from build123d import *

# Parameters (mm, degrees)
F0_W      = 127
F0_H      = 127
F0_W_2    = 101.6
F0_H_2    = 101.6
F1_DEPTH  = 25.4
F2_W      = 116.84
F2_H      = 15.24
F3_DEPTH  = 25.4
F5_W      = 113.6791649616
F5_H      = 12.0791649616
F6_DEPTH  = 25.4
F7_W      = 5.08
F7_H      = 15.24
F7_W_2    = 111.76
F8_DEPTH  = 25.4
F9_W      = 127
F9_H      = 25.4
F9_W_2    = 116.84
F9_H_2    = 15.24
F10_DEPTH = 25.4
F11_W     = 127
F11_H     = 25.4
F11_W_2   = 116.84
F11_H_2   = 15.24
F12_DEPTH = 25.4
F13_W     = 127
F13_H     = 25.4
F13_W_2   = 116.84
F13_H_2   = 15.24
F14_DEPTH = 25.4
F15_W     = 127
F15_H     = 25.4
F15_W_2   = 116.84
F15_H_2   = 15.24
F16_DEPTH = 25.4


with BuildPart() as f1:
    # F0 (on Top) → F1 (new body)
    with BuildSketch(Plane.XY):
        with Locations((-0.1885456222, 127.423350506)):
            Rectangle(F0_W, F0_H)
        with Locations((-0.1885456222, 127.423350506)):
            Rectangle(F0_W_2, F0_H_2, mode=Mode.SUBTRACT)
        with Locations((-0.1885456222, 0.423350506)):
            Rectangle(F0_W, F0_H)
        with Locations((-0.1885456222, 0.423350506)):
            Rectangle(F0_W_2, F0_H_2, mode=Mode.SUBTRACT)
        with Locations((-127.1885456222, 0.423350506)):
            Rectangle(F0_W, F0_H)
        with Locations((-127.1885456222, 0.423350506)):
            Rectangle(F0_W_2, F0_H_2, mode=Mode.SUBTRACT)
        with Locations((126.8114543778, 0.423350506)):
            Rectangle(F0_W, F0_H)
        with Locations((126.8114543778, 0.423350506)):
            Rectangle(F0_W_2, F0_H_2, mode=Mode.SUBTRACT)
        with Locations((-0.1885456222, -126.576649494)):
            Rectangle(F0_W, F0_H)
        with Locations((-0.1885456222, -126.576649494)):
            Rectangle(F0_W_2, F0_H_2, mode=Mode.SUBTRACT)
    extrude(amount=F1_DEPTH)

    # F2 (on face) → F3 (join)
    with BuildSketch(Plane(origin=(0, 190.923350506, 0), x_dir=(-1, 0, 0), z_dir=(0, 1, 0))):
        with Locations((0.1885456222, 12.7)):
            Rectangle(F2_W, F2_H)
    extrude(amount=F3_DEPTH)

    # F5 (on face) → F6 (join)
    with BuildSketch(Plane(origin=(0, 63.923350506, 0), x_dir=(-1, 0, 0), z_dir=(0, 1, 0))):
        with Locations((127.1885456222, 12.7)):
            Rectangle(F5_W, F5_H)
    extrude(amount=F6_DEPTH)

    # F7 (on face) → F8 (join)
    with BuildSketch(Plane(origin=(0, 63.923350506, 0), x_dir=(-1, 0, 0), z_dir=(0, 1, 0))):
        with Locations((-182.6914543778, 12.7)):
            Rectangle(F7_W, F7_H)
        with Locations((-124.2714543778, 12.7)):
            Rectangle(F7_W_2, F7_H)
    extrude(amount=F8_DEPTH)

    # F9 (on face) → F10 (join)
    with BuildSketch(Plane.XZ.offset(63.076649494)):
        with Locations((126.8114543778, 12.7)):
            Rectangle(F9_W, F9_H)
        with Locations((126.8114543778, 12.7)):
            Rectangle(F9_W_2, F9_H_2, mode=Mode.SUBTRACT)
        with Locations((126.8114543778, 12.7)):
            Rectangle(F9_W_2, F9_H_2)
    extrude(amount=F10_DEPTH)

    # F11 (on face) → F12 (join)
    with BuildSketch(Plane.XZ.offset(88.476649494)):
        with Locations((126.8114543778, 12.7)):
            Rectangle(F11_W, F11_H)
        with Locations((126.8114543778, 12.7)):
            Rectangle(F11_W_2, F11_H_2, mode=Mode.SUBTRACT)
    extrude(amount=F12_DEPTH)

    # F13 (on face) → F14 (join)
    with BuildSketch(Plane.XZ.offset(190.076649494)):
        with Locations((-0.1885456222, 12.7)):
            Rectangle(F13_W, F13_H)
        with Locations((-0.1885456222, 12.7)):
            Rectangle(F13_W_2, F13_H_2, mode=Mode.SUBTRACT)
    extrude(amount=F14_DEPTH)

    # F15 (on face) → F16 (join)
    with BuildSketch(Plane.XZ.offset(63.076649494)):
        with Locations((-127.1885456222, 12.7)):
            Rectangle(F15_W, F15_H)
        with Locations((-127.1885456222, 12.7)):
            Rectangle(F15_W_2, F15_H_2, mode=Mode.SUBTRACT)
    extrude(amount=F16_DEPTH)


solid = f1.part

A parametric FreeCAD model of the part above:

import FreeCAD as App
import Part
import Sketcher

V = App.Vector
Q = App.Units.Quantity

doc = App.newDocument("Part")
params = doc.addObject("Spreadsheet::Sheet", "Params")
for row, (alias, value) in enumerate([
    ("sketch1_width", "5 in"),
    ("sketch1_width2", "4 in"),
    ("pad1_length", "1 in"),
    ("sketch2_width", "4.6 in"),
    ("sketch2_height", "0.6 in"),
    ("pad2_length", "1 in"),
    ("pad3_length", "1 in"),
    ("sketch4_width", "4.6 in"),
    ("sketch4_height", "0.6 in"),
    ("pad4_length", "1 in"),
    ("sketch5_width", "5 in"),
    ("sketch5_height", "1 in"),
    ("pad5_length", "1 in"),
    ("sketch6_width", "5 in"),
    ("sketch6_height", "1 in"),
    ("sketch6_width2", "4.6 in"),
    ("sketch6_height2", "0.6 in"),
    ("pad6_length", "1 in"),
    ("sketch7_width", "5 in"),
    ("sketch7_height", "1 in"),
    ("sketch7_width2", "4.6 in"),
    ("sketch7_height2", "0.6 in"),
    ("pad7_length", "1 in"),
    ("sketch8_width", "5 in"),
    ("sketch8_height", "1 in"),
    ("sketch8_width2", "4.6 in"),
    ("sketch8_height2", "0.6 in"),
    ("pad8_length", "1 in"),
], start=1):
    params.set(f"A{row}", alias)
    params.set(f"B{row}", "=" + value)
    params.setAlias(f"B{row}", alias)

body = doc.addObject("PartDesign::Body", "Body")

# Sketch on XY plane
sketch1 = doc.addObject("Sketcher::SketchObject", "Sketch")
body.addObject(sketch1)
sketch1.AttachmentSupport = (doc.XY_Plane, [""])
sketch1.MapMode = "FlatFace"
sketch1.addGeometry([
    Part.LineSegment(V(-63.688546, 190.923351, 0), V(-63.688546, 63.923351, 0)),  # 0
    Part.LineSegment(V(-63.688546, 63.923351, 0), V(-190.688546, 63.923351, 0)),  # 1
    Part.LineSegment(V(-190.688546, 63.923351, 0), V(-190.688546, -63.076649, 0)),  # 2
    Part.LineSegment(V(-190.688546, -63.076649, 0), V(-63.688546, -63.076649, 0)),  # 3
    Part.LineSegment(V(-63.688546, -63.076649, 0), V(-63.688546, -190.076649, 0)),  # 4
    Part.LineSegment(V(-63.688546, -190.076649, 0), V(63.311454, -190.076649, 0)),  # 5
    Part.LineSegment(V(63.311454, -190.076649, 0), V(63.311454, -63.076649, 0)),  # 6
    Part.LineSegment(V(63.311454, -63.076649, 0), V(190.311454, -63.076649, 0)),  # 7
    Part.LineSegment(V(190.311454, -63.076649, 0), V(190.311454, 63.923351, 0)),  # 8
    Part.LineSegment(V(190.311454, 63.923351, 0), V(63.311454, 63.923351, 0)),  # 9
    Part.LineSegment(V(63.311454, 63.923351, 0), V(63.311454, 190.923351, 0)),  # 10
    Part.LineSegment(V(63.311454, 190.923351, 0), V(-63.688546, 190.923351, 0)),  # 11
    Part.LineSegment(V(50.611454, -177.376649, 0), V(-50.988546, -177.376649, 0)),  # 12
    Part.LineSegment(V(-50.988546, -177.376649, 0), V(-50.988546, -75.776649, 0)),  # 13
    Part.LineSegment(V(-50.988546, -75.776649, 0), V(50.611454, -75.776649, 0)),  # 14
    Part.LineSegment(V(50.611454, -75.776649, 0), V(50.611454, -177.376649, 0)),  # 15
    Part.LineSegment(V(-76.388546, -50.376649, 0), V(-177.988546, -50.376649, 0)),  # 16
    Part.LineSegment(V(-177.988546, -50.376649, 0), V(-177.988546, 51.223351, 0)),  # 17
    Part.LineSegment(V(-177.988546, 51.223351, 0), V(-76.388546, 51.223351, 0)),  # 18
    Part.LineSegment(V(-76.388546, 51.223351, 0), V(-76.388546, -50.376649, 0)),  # 19
    Part.LineSegment(V(50.611454, -50.376649, 0), V(-50.988546, -50.376649, 0)),  # 20
    Part.LineSegment(V(-50.988546, -50.376649, 0), V(-50.988546, 51.223351, 0)),  # 21
    Part.LineSegment(V(-50.988546, 51.223351, 0), V(50.611454, 51.223351, 0)),  # 22
    Part.LineSegment(V(50.611454, 51.223351, 0), V(50.611454, -50.376649, 0)),  # 23
    Part.LineSegment(V(177.611454, -50.376649, 0), V(76.011454, -50.376649, 0)),  # 24
    Part.LineSegment(V(76.011454, -50.376649, 0), V(76.011454, 51.223351, 0)),  # 25
    Part.LineSegment(V(76.011454, 51.223351, 0), V(177.611454, 51.223351, 0)),  # 26
    Part.LineSegment(V(177.611454, 51.223351, 0), V(177.611454, -50.376649, 0)),  # 27
    Part.LineSegment(V(50.611454, 76.623351, 0), V(-50.988546, 76.623351, 0)),  # 28
    Part.LineSegment(V(-50.988546, 76.623351, 0), V(-50.988546, 178.223351, 0)),  # 29
    Part.LineSegment(V(-50.988546, 178.223351, 0), V(50.611454, 178.223351, 0)),  # 30
    Part.LineSegment(V(50.611454, 178.223351, 0), V(50.611454, 76.623351, 0)),  # 31
], False)
sketch1.addConstraint([
    Sketcher.Constraint("Coincident", 0, 2, 1, 1),
    Sketcher.Constraint("Coincident", 1, 2, 2, 1),
    Sketcher.Constraint("Coincident", 2, 2, 3, 1),
    Sketcher.Constraint("Coincident", 3, 2, 4, 1),
    Sketcher.Constraint("Coincident", 4, 2, 5, 1),
    Sketcher.Constraint("Coincident", 5, 2, 6, 1),
    Sketcher.Constraint("Coincident", 6, 2, 7, 1),
    Sketcher.Constraint("Coincident", 7, 2, 8, 1),
    Sketcher.Constraint("Coincident", 8, 2, 9, 1),
    Sketcher.Constraint("Coincident", 9, 2, 10, 1),
    Sketcher.Constraint("Coincident", 10, 2, 11, 1),
    Sketcher.Constraint("Coincident", 11, 2, 0, 1),
    Sketcher.Constraint("Coincident", 12, 2, 13, 1),
    Sketcher.Constraint("Coincident", 13, 2, 14, 1),
    Sketcher.Constraint("Coincident", 14, 2, 15, 1),
    Sketcher.Constraint("Coincident", 15, 2, 12, 1),
    Sketcher.Constraint("Coincident", 16, 2, 17, 1),
    Sketcher.Constraint("Coincident", 17, 2, 18, 1),
    Sketcher.Constraint("Coincident", 18, 2, 19, 1),
    Sketcher.Constraint("Coincident", 19, 2, 16, 1),
    Sketcher.Constraint("Coincident", 20, 2, 21, 1),
    Sketcher.Constraint("Coincident", 21, 2, 22, 1),
    Sketcher.Constraint("Coincident", 22, 2, 23, 1),
    Sketcher.Constraint("Coincident", 23, 2, 20, 1),
    Sketcher.Constraint("Coincident", 24, 2, 25, 1),
    Sketcher.Constraint("Coincident", 25, 2, 26, 1),
    Sketcher.Constraint("Coincident", 26, 2, 27, 1),
    Sketcher.Constraint("Coincident", 27, 2, 24, 1),
    Sketcher.Constraint("Coincident", 28, 2, 29, 1),
    Sketcher.Constraint("Coincident", 29, 2, 30, 1),
    Sketcher.Constraint("Coincident", 30, 2, 31, 1),
    Sketcher.Constraint("Coincident", 31, 2, 28, 1),
    Sketcher.Constraint("Vertical", 0),
    Sketcher.Constraint("Horizontal", 1),
    Sketcher.Constraint("Vertical", 2),
    Sketcher.Constraint("Horizontal", 3),
    Sketcher.Constraint("Vertical", 4),
    Sketcher.Constraint("Horizontal", 5),
    Sketcher.Constraint("Vertical", 6),
    Sketcher.Constraint("Horizontal", 7),
    Sketcher.Constraint("Vertical", 8),
    Sketcher.Constraint("Horizontal", 9),
    Sketcher.Constraint("Vertical", 10),
    Sketcher.Constraint("Horizontal", 11),
    Sketcher.Constraint("Horizontal", 12),
    Sketcher.Constraint("Vertical", 13),
    Sketcher.Constraint("Horizontal", 14),
    Sketcher.Constraint("Vertical", 15),
    Sketcher.Constraint("Horizontal", 16),
    Sketcher.Constraint("Vertical", 17),
    Sketcher.Constraint("Horizontal", 18),
    Sketcher.Constraint("Vertical", 19),
    Sketcher.Constraint("Horizontal", 20),
    Sketcher.Constraint("Vertical", 21),
    Sketcher.Constraint("Horizontal", 22),
    Sketcher.Constraint("Vertical", 23),
    Sketcher.Constraint("Horizontal", 24),
    Sketcher.Constraint("Vertical", 25),
    Sketcher.Constraint("Horizontal", 26),
    Sketcher.Constraint("Vertical", 27),
    Sketcher.Constraint("Horizontal", 28),
    Sketcher.Constraint("Vertical", 29),
    Sketcher.Constraint("Horizontal", 30),
    Sketcher.Constraint("Vertical", 31),
    Sketcher.Constraint("Horizontal", 3, 2, 6, 2),
    Sketcher.Constraint("Horizontal", 1, 2, 8, 2),
    Sketcher.Constraint("Horizontal", 19, 2, 20, 2),
    Sketcher.Constraint("Horizontal", 18, 2, 21, 2),
    Sketcher.Constraint("Horizontal", 23, 2, 24, 2),
    Sketcher.Constraint("Horizontal", 22, 2, 25, 2),
    Sketcher.Constraint("Vertical", 0, 2, 3, 2),
    Sketcher.Constraint("Vertical", 6, 2, 9, 2),
    Sketcher.Constraint("Vertical", 13, 2, 20, 2),
    Sketcher.Constraint("Vertical", 15, 2, 22, 2),
    Sketcher.Constraint("Vertical", 21, 2, 28, 2),
    Sketcher.Constraint("Vertical", 23, 2, 30, 2),
    Sketcher.Constraint("Equal", 3, 5),
    Sketcher.Constraint("Equal", 5, 7),
    Sketcher.Constraint("Equal", 14, 16),
    Sketcher.Constraint("Equal", 22, 24),
    Sketcher.Constraint("Equal", 11, 0),
    Sketcher.Constraint("Equal", 0, 2),
    Sketcher.Constraint("Equal", 2, 4),
    Sketcher.Constraint("Equal", 30, 13),
    Sketcher.Constraint("Equal", 15, 17),
    Sketcher.Constraint("Equal", 27, 29),
    Sketcher.Constraint("DistanceX", 1, 2, 1, 1, Q("5 in")),
    Sketcher.Constraint("DistanceX", 12, 2, 12, 1, Q("4 in")),
    Sketcher.Constraint("DistanceX", 16, 2, 13, 2, Q("5 in")),
    Sketcher.Constraint("DistanceY", 13, 2, 16, 2, Q("1 in")),
    Sketcher.Constraint("DistanceX", 23, 2, 24, 2, Q("1 in")),
    Sketcher.Constraint("DistanceY", 21, 2, 28, 2, Q("1 in")),
    Sketcher.Constraint("DistanceX", 4, 2, 12, 2, Q("0.5 in")),
    Sketcher.Constraint("DistanceY", 4, 2, 12, 2, Q("0.5 in")),
    Sketcher.Constraint("DistanceY", -1, 1, 0, 2, Q("63.923351 mm")),
    Sketcher.Constraint("DistanceX", 0, 2, -1, 1, Q("63.688546 mm")),
])
sketch1.setExpression("Constraints[86]", "Params.sketch1_width")
sketch1.setExpression("Constraints[87]", "Params.sketch1_width2")
pad1 = doc.addObject("PartDesign::Pad", "Pad")
body.addObject(pad1)
pad1.Profile = sketch1
pad1.setExpression("Length", "Params.pad1_length")

# Sketch on XZ plane
sketch2 = doc.addObject("Sketcher::SketchObject", "Sketch001")
body.addObject(sketch2)
sketch2.AttachmentSupport = (doc.XZ_Plane, [""])
sketch2.MapMode = "FlatFace"
sketch2.AttachmentOffset = App.Placement(V(0, 0, -190.923351), App.Rotation())
sketch2.addGeometry([
    Part.LineSegment(V(58.231454, 20.32, 0), V(58.231454, 5.08, 0)),
    Part.LineSegment(V(58.231454, 5.08, 0), V(-58.608546, 5.08, 0)),
    Part.LineSegment(V(-58.608546, 5.08, 0), V(-58.608546, 20.32, 0)),
    Part.LineSegment(V(-58.608546, 20.32, 0), V(58.231454, 20.32, 0)),
], False)
sketch2.addConstraint([
    Sketcher.Constraint("Coincident", 0, 2, 1, 1),
    Sketcher.Constraint("Coincident", 1, 2, 2, 1),
    Sketcher.Constraint("Coincident", 2, 2, 3, 1),
    Sketcher.Constraint("Coincident", 3, 2, 0, 1),
    Sketcher.Constraint("Vertical", 0),
    Sketcher.Constraint("Horizontal", 1),
    Sketcher.Constraint("Vertical", 2),
    Sketcher.Constraint("Horizontal", 3),
    Sketcher.Constraint("DistanceX", 1, 2, 1, 1, Q("4.6 in")),
    Sketcher.Constraint("DistanceY", 0, 2, 0, 1, Q("0.6 in")),
    Sketcher.Constraint("DistanceY", -1, 1, 0, 2, Q("0.2 in")),
    Sketcher.Constraint("DistanceX", -1, 1, 0, 2, Q("58.231454 mm")),
])
sketch2.setExpression("Constraints[8]", "Params.sketch2_width")
sketch2.setExpression("Constraints[9]", "Params.sketch2_height")
pad2 = doc.addObject("PartDesign::Pad", "Pad001")
body.addObject(pad2)
pad2.Profile = sketch2
pad2.setExpression("Length", "Params.pad2_length")
pad2.Reversed = True

# Sketch on XZ plane
sketch3 = doc.addObject("Sketcher::SketchObject", "Sketch002")
body.addObject(sketch3)
sketch3.AttachmentSupport = (doc.XZ_Plane, [""])
sketch3.MapMode = "FlatFace"
sketch3.AttachmentOffset = App.Placement(V(0, 0, -63.923351), App.Rotation())
sketch3.addGeometry([
    Part.LineSegment(V(-70.348963, 18.739582, 0), V(-70.348963, 6.660418, 0)),
    Part.LineSegment(V(-70.348963, 6.660418, 0), V(-184.028128, 6.660418, 0)),
    Part.LineSegment(V(-184.028128, 6.660418, 0), V(-184.028128, 18.739582, 0)),
    Part.LineSegment(V(-184.028128, 18.739582, 0), V(-70.348963, 18.739582, 0)),
], False)
sketch3.addConstraint([
    Sketcher.Constraint("Coincident", 0, 2, 1, 1),
    Sketcher.Constraint("Coincident", 1, 2, 2, 1),
    Sketcher.Constraint("Coincident", 2, 2, 3, 1),
    Sketcher.Constraint("Coincident", 3, 2, 0, 1),
    Sketcher.Constraint("Vertical", 0),
    Sketcher.Constraint("Horizontal", 1),
    Sketcher.Constraint("Vertical", 2),
    Sketcher.Constraint("Horizontal", 3),
    Sketcher.Constraint("DistanceX", 1, 2, 1, 1, Q("113.679165 mm")),
    Sketcher.Constraint("DistanceY", 0, 2, 0, 1, Q("12.079165 mm")),
    Sketcher.Constraint("DistanceX", 1, 2, -1, 1, Q("184.028128 mm")),
    Sketcher.Constraint("DistanceY", -1, 1, 0, 2, Q("6.660418 mm")),
])
pad3 = doc.addObject("PartDesign::Pad", "Pad002")
body.addObject(pad3)
pad3.Profile = sketch3
pad3.setExpression("Length", "Params.pad3_length")
pad3.Reversed = True

# Sketch on XZ plane
sketch4 = doc.addObject("Sketcher::SketchObject", "Sketch003")
body.addObject(sketch4)
sketch4.AttachmentSupport = (doc.XZ_Plane, [""])
sketch4.MapMode = "FlatFace"
sketch4.AttachmentOffset = App.Placement(V(0, 0, -63.923351), App.Rotation())
sketch4.addGeometry([
    Part.LineSegment(V(185.231454, 20.32, 0), V(185.231454, 5.08, 0)),
    Part.LineSegment(V(185.231454, 5.08, 0), V(68.391454, 5.08, 0)),
    Part.LineSegment(V(68.391454, 5.08, 0), V(68.391454, 20.32, 0)),
    Part.LineSegment(V(68.391454, 20.32, 0), V(185.231454, 20.32, 0)),
], False)
sketch4.addConstraint([
    Sketcher.Constraint("Coincident", 0, 2, 1, 1),
    Sketcher.Constraint("Coincident", 1, 2, 2, 1),
    Sketcher.Constraint("Coincident", 2, 2, 3, 1),
    Sketcher.Constraint("Coincident", 3, 2, 0, 1),
    Sketcher.Constraint("Vertical", 0),
    Sketcher.Constraint("Horizontal", 1),
    Sketcher.Constraint("Vertical", 2),
    Sketcher.Constraint("Horizontal", 3),
    Sketcher.Constraint("DistanceX", 1, 2, 1, 1, Q("4.6 in")),
    Sketcher.Constraint("DistanceY", 0, 2, 0, 1, Q("0.6 in")),
    Sketcher.Constraint("DistanceY", -1, 1, 0, 2, Q("0.2 in")),
    Sketcher.Constraint("DistanceX", -1, 1, 0, 2, Q("185.231454 mm")),
])
sketch4.setExpression("Constraints[8]", "Params.sketch4_width")
sketch4.setExpression("Constraints[9]", "Params.sketch4_height")
pad4 = doc.addObject("PartDesign::Pad", "Pad003")
body.addObject(pad4)
pad4.Profile = sketch4
pad4.setExpression("Length", "Params.pad4_length")
pad4.Reversed = True

# Sketch on XZ plane
sketch5 = doc.addObject("Sketcher::SketchObject", "Sketch004")
body.addObject(sketch5)
sketch5.AttachmentSupport = (doc.XZ_Plane, [""])
sketch5.MapMode = "FlatFace"
sketch5.AttachmentOffset = App.Placement(V(0, 0, 63.076649), App.Rotation())
sketch5.addGeometry([
    Part.LineSegment(V(63.311454, 25.4, 0), V(63.311454, 0, 0)),
    Part.LineSegment(V(63.311454, 0, 0), V(190.311454, 0, 0)),
    Part.LineSegment(V(190.311454, 0, 0), V(190.311454, 25.4, 0)),
    Part.LineSegment(V(190.311454, 25.4, 0), V(63.311454, 25.4, 0)),
], False)
sketch5.addConstraint([
    Sketcher.Constraint("Coincident", 0, 2, 1, 1),
    Sketcher.Constraint("Coincident", 1, 2, 2, 1),
    Sketcher.Constraint("Coincident", 2, 2, 3, 1),
    Sketcher.Constraint("Coincident", 3, 2, 0, 1),
    Sketcher.Constraint("Vertical", 0),
    Sketcher.Constraint("Horizontal", 1),
    Sketcher.Constraint("Vertical", 2),
    Sketcher.Constraint("Horizontal", 3),
    Sketcher.Constraint("PointOnObject", 0, 2, -1),
    Sketcher.Constraint("DistanceX", 1, 1, 1, 2, Q("5 in")),
    Sketcher.Constraint("DistanceY", 0, 2, 0, 1, Q("1 in")),
    Sketcher.Constraint("DistanceX", -1, 1, 0, 2, Q("63.311454 mm")),
])
sketch5.setExpression("Constraints[9]", "Params.sketch5_width")
sketch5.setExpression("Constraints[10]", "Params.sketch5_height")
pad5 = doc.addObject("PartDesign::Pad", "Pad004")
body.addObject(pad5)
pad5.Profile = sketch5
pad5.setExpression("Length", "Params.pad5_length")

# Sketch on XZ plane
sketch6 = doc.addObject("Sketcher::SketchObject", "Sketch005")
body.addObject(sketch6)
sketch6.AttachmentSupport = (doc.XZ_Plane, [""])
sketch6.MapMode = "FlatFace"
sketch6.AttachmentOffset = App.Placement(V(0, 0, 88.476649), App.Rotation())
sketch6.addGeometry([
    Part.LineSegment(V(63.311454, 25.4, 0), V(63.311454, 0, 0)),  # 0
    Part.LineSegment(V(63.311454, 0, 0), V(190.311454, 0, 0)),  # 1
    Part.LineSegment(V(190.311454, 0, 0), V(190.311454, 25.4, 0)),  # 2
    Part.LineSegment(V(190.311454, 25.4, 0), V(63.311454, 25.4, 0)),  # 3
    Part.LineSegment(V(185.231454, 5.08, 0), V(68.391454, 5.08, 0)),  # 4
    Part.LineSegment(V(68.391454, 5.08, 0), V(68.391454, 20.32, 0)),  # 5
    Part.LineSegment(V(68.391454, 20.32, 0), V(185.231454, 20.32, 0)),  # 6
    Part.LineSegment(V(185.231454, 20.32, 0), V(185.231454, 5.08, 0)),  # 7
], False)
sketch6.addConstraint([
    Sketcher.Constraint("Coincident", 0, 2, 1, 1),
    Sketcher.Constraint("Coincident", 1, 2, 2, 1),
    Sketcher.Constraint("Coincident", 2, 2, 3, 1),
    Sketcher.Constraint("Coincident", 3, 2, 0, 1),
    Sketcher.Constraint("Coincident", 4, 2, 5, 1),
    Sketcher.Constraint("Coincident", 5, 2, 6, 1),
    Sketcher.Constraint("Coincident", 6, 2, 7, 1),
    Sketcher.Constraint("Coincident", 7, 2, 4, 1),
    Sketcher.Constraint("Vertical", 0),
    Sketcher.Constraint("Horizontal", 1),
    Sketcher.Constraint("Vertical", 2),
    Sketcher.Constraint("Horizontal", 3),
    Sketcher.Constraint("Horizontal", 4),
    Sketcher.Constraint("Vertical", 5),
    Sketcher.Constraint("Horizontal", 6),
    Sketcher.Constraint("Vertical", 7),
    Sketcher.Constraint("PointOnObject", 0, 2, -1),
    Sketcher.Constraint("DistanceX", 1, 1, 1, 2, Q("5 in")),
    Sketcher.Constraint("DistanceY", 0, 2, 0, 1, Q("1 in")),
    Sketcher.Constraint("DistanceX", 4, 2, 4, 1, Q("4.6 in")),
    Sketcher.Constraint("DistanceY", 5, 1, 5, 2, Q("0.6 in")),
    Sketcher.Constraint("DistanceY", -1, 1, 4, 2, Q("0.2 in")),
    Sketcher.Constraint("DistanceX", 0, 2, 4, 2, Q("0.2 in")),
    Sketcher.Constraint("DistanceX", -1, 1, 0, 2, Q("63.311454 mm")),
])
sketch6.setExpression("Constraints[17]", "Params.sketch6_width")
sketch6.setExpression("Constraints[18]", "Params.sketch6_height")
sketch6.setExpression("Constraints[19]", "Params.sketch6_width2")
sketch6.setExpression("Constraints[20]", "Params.sketch6_height2")
pad6 = doc.addObject("PartDesign::Pad", "Pad005")
body.addObject(pad6)
pad6.Profile = sketch6
pad6.setExpression("Length", "Params.pad6_length")

# Sketch on XZ plane
sketch7 = doc.addObject("Sketcher::SketchObject", "Sketch006")
body.addObject(sketch7)
sketch7.AttachmentSupport = (doc.XZ_Plane, [""])
sketch7.MapMode = "FlatFace"
sketch7.AttachmentOffset = App.Placement(V(0, 0, 190.076649), App.Rotation())
sketch7.addGeometry([
    Part.LineSegment(V(-63.688546, 25.4, 0), V(-63.688546, 0, 0)),  # 0
    Part.LineSegment(V(-63.688546, 0, 0), V(63.311454, 0, 0)),  # 1
    Part.LineSegment(V(63.311454, 0, 0), V(63.311454, 25.4, 0)),  # 2
    Part.LineSegment(V(63.311454, 25.4, 0), V(-63.688546, 25.4, 0)),  # 3
    Part.LineSegment(V(58.231454, 5.08, 0), V(-58.608546, 5.08, 0)),  # 4
    Part.LineSegment(V(-58.608546, 5.08, 0), V(-58.608546, 20.32, 0)),  # 5
    Part.LineSegment(V(-58.608546, 20.32, 0), V(58.231454, 20.32, 0)),  # 6
    Part.LineSegment(V(58.231454, 20.32, 0), V(58.231454, 5.08, 0)),  # 7
], False)
sketch7.addConstraint([
    Sketcher.Constraint("Coincident", 0, 2, 1, 1),
    Sketcher.Constraint("Coincident", 1, 2, 2, 1),
    Sketcher.Constraint("Coincident", 2, 2, 3, 1),
    Sketcher.Constraint("Coincident", 3, 2, 0, 1),
    Sketcher.Constraint("Coincident", 4, 2, 5, 1),
    Sketcher.Constraint("Coincident", 5, 2, 6, 1),
    Sketcher.Constraint("Coincident", 6, 2, 7, 1),
    Sketcher.Constraint("Coincident", 7, 2, 4, 1),
    Sketcher.Constraint("Vertical", 0),
    Sketcher.Constraint("Horizontal", 1),
    Sketcher.Constraint("Vertical", 2),
    Sketcher.Constraint("Horizontal", 3),
    Sketcher.Constraint("Horizontal", 4),
    Sketcher.Constraint("Vertical", 5),
    Sketcher.Constraint("Horizontal", 6),
    Sketcher.Constraint("Vertical", 7),
    Sketcher.Constraint("PointOnObject", 0, 2, -1),
    Sketcher.Constraint("DistanceX", 1, 1, 1, 2, Q("5 in")),
    Sketcher.Constraint("DistanceY", 0, 2, 0, 1, Q("1 in")),
    Sketcher.Constraint("DistanceX", 4, 2, 4, 1, Q("4.6 in")),
    Sketcher.Constraint("DistanceY", 5, 1, 5, 2, Q("0.6 in")),
    Sketcher.Constraint("DistanceY", -1, 1, 4, 2, Q("0.2 in")),
    Sketcher.Constraint("DistanceX", 0, 2, 4, 2, Q("0.2 in")),
    Sketcher.Constraint("DistanceX", 0, 2, -1, 1, Q("63.688546 mm")),
])
sketch7.setExpression("Constraints[17]", "Params.sketch7_width")
sketch7.setExpression("Constraints[18]", "Params.sketch7_height")
sketch7.setExpression("Constraints[19]", "Params.sketch7_width2")
sketch7.setExpression("Constraints[20]", "Params.sketch7_height2")
pad7 = doc.addObject("PartDesign::Pad", "Pad006")
body.addObject(pad7)
pad7.Profile = sketch7
pad7.setExpression("Length", "Params.pad7_length")

# Sketch on XZ plane
sketch8 = doc.addObject("Sketcher::SketchObject", "Sketch007")
body.addObject(sketch8)
sketch8.AttachmentSupport = (doc.XZ_Plane, [""])
sketch8.MapMode = "FlatFace"
sketch8.AttachmentOffset = App.Placement(V(0, 0, 63.076649), App.Rotation())
sketch8.addGeometry([
    Part.LineSegment(V(-190.688546, 25.4, 0), V(-190.688546, 0, 0)),  # 0
    Part.LineSegment(V(-190.688546, 0, 0), V(-63.688546, 0, 0)),  # 1
    Part.LineSegment(V(-63.688546, 0, 0), V(-63.688546, 25.4, 0)),  # 2
    Part.LineSegment(V(-63.688546, 25.4, 0), V(-190.688546, 25.4, 0)),  # 3
    Part.LineSegment(V(-68.768546, 5.08, 0), V(-185.608546, 5.08, 0)),  # 4
    Part.LineSegment(V(-185.608546, 5.08, 0), V(-185.608546, 20.32, 0)),  # 5
    Part.LineSegment(V(-185.608546, 20.32, 0), V(-68.768546, 20.32, 0)),  # 6
    Part.LineSegment(V(-68.768546, 20.32, 0), V(-68.768546, 5.08, 0)),  # 7
], False)
sketch8.addConstraint([
    Sketcher.Constraint("Coincident", 0, 2, 1, 1),
    Sketcher.Constraint("Coincident", 1, 2, 2, 1),
    Sketcher.Constraint("Coincident", 2, 2, 3, 1),
    Sketcher.Constraint("Coincident", 3, 2, 0, 1),
    Sketcher.Constraint("Coincident", 4, 2, 5, 1),
    Sketcher.Constraint("Coincident", 5, 2, 6, 1),
    Sketcher.Constraint("Coincident", 6, 2, 7, 1),
    Sketcher.Constraint("Coincident", 7, 2, 4, 1),
    Sketcher.Constraint("Vertical", 0),
    Sketcher.Constraint("Horizontal", 1),
    Sketcher.Constraint("Vertical", 2),
    Sketcher.Constraint("Horizontal", 3),
    Sketcher.Constraint("Horizontal", 4),
    Sketcher.Constraint("Vertical", 5),
    Sketcher.Constraint("Horizontal", 6),
    Sketcher.Constraint("Vertical", 7),
    Sketcher.Constraint("PointOnObject", 0, 2, -1),
    Sketcher.Constraint("DistanceX", 1, 1, 1, 2, Q("5 in")),
    Sketcher.Constraint("DistanceY", 0, 2, 0, 1, Q("1 in")),
    Sketcher.Constraint("DistanceX", 4, 2, 4, 1, Q("4.6 in")),
    Sketcher.Constraint("DistanceY", 5, 1, 5, 2, Q("0.6 in")),
    Sketcher.Constraint("DistanceY", -1, 1, 4, 2, Q("0.2 in")),
    Sketcher.Constraint("DistanceX", 0, 2, 4, 2, Q("0.2 in")),
    Sketcher.Constraint("DistanceX", 0, 2, -1, 1, Q("190.688546 mm")),
])
sketch8.setExpression("Constraints[17]", "Params.sketch8_width")
sketch8.setExpression("Constraints[18]", "Params.sketch8_height")
sketch8.setExpression("Constraints[19]", "Params.sketch8_width2")
sketch8.setExpression("Constraints[20]", "Params.sketch8_height2")
pad8 = doc.addObject("PartDesign::Pad", "Pad007")
body.addObject(pad8)
pad8.Profile = sketch8
pad8.setExpression("Length", "Params.pad8_length")

doc.recompute()
